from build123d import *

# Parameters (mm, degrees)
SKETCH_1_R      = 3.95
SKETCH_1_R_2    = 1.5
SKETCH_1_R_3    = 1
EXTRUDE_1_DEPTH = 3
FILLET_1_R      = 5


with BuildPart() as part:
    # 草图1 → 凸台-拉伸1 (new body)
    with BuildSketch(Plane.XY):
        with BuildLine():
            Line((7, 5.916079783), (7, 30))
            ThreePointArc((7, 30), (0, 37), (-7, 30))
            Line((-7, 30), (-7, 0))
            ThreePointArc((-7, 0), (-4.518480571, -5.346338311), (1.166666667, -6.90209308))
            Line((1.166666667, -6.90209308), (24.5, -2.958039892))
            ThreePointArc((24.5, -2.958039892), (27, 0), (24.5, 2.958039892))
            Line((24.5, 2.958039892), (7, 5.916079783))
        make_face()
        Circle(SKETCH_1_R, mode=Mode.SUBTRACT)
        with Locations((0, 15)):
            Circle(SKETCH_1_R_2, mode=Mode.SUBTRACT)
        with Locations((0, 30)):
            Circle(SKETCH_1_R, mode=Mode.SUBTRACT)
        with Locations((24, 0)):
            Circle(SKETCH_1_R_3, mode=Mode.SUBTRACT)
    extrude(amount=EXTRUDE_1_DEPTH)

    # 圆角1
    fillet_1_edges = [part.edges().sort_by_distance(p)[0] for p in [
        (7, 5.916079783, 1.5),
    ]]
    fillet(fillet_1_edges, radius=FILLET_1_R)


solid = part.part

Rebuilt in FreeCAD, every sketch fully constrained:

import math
import FreeCAD as App
import Part
import Sketcher

V = App.Vector
Q = App.Units.Quantity


def edges_at(feature, points):
    """Names of the edges that pass closest to the given points."""
    edges = feature.Shape.Edges
    near = lambda p: min(range(len(edges)), key=lambda i: edges[i].distToShape(Part.Vertex(*p))[0])
    return sorted({f"Edge{near(p) + 1}" for p in points})

doc = App.newDocument("Part")
params = doc.addObject("Spreadsheet::Sheet", "Params")
for row, (alias, value) in enumerate([
    ("sketch1_diameter", "2 mm"),
    ("sketch1_diameter2", "3 mm"),
    ("sketch1_radius", "7 mm"),
    ("sketch1_radius2", "3 mm"),
    ("sketch1_diameter3", "7.9 mm"),
    ("pad1_length", "3 mm"),
    ("fillet_radius", "5 mm"),
], start=1):
    params.set(f"A{row}", alias)
    params.set(f"B{row}", "=" + value)
    params.setAlias(f"B{row}", alias)

body = doc.addObject("PartDesign::Body", "Body")

# Sketch on XY plane
sketch1 = body.newObject("Sketcher::SketchObject", "Sketch")
sketch1.AttachmentSupport = (doc.getObject("XY_Plane"), [""])
sketch1.MapMode = "FlatFace"
sketch1.addGeometry(Part.LineSegment(V(7, 5.9, 0), V(7, 30, 0)), False)
sketch1.addGeometry(Part.ArcOfCircle(Part.Circle(V(0, 30, 0), V(0, 0, 1), 7), math.radians(0), math.radians(180)), False)
sketch1.addGeometry(Part.LineSegment(V(-7, 30, 0), V(-7, 0, 0)), False)
sketch1.addGeometry(Part.ArcOfCircle(Part.Circle(V(0, 0, 0), V(0, 0, 1), 7), math.radians(180), math.radians(280)), False)
sketch1.addGeometry(Part.LineSegment(V(1.2, -6.9, 0), V(24.5, -3, 0)), False)
sketch1.addGeometry(Part.ArcOfCircle(Part.Circle(V(24, 0, 0), V(0, 0, 1), 3), math.radians(-80), math.radians(80)), False)
sketch1.addGeometry(Part.LineSegment(V(24.5, 3, 0), V(7, 5.9, 0)), False)
sketch1.addGeometry(Part.Circle(V(0, 0, 0), V(0, 0, 1), 4), False)
sketch1.addGeometry(Part.Circle(V(24, 0, 0), V(0, 0, 1), 1), False)
sketch1.addGeometry(Part.Circle(V(0, 15, 0), V(0, 0, 1), 1.5), False)
sketch1.addGeometry(Part.Circle(V(0, 30, 0), V(0, 0, 1), 4), False)
sketch1.addConstraint(Sketcher.Constraint("Tangent", 0, 2, 1, 1))
sketch1.addConstraint(Sketcher.Constraint("Tangent", 1, 2, 2, 1))
sketch1.addConstraint(Sketcher.Constraint("Tangent", 2, 2, 3, 1))
sketch1.addConstraint(Sketcher.Constraint("Tangent", 3, 2, 4, 1))
sketch1.addConstraint(Sketcher.Constraint("Tangent", 4, 2, 5, 1))
sketch1.addConstraint(Sketcher.Constraint("Tangent", 5, 2, 6, 1))
sketch1.addConstraint(Sketcher.Constraint("Coincident", 6, 2, 0, 1))
sketch1.addConstraint(Sketcher.Constraint("Vertical", 0))
sketch1.addConstraint(Sketcher.Constraint("Vertical", 2))
sketch1.addConstraint(Sketcher.Constraint("Coincident", 3, 3, -1, 1))
sketch1.addConstraint(Sketcher.Constraint("Coincident", 7, 3, -1, 1))
sketch1.addConstraint(Sketcher.Constraint("Coincident", 8, 3, 5, 3))
sketch1.addConstraint(Sketcher.Constraint("Coincident", 10, 3, 1, 3))
sketch1.addConstraint(Sketcher.Constraint("Equal", 1, 3))
sketch1.addConstraint(Sketcher.Constraint("Equal", 7, 10))
sketch1.addConstraint(Sketcher.Constraint("Symmetric", 4, 2, 5, 2, -1))
sketch1.addConstraint(Sketcher.Constraint("PointOnObject", 9, 3, -2))
sketch1.addConstraint(Sketcher.Constraint("Diameter", 8, Q("2 mm")))
sketch1.addConstraint(Sketcher.Constraint("Diameter", 9, Q("3 mm")))
sketch1.addConstraint(Sketcher.Constraint("Radius", 1, Q("7 mm")))
sketch1.addConstraint(Sketcher.Constraint("Radius", 5, Q("3 mm")))
sketch1.addConstraint(Sketcher.Constraint("Diameter", 7, Q("7.9 mm")))
sketch1.addConstraint(Sketcher.Constraint("DistanceY", 2, 2, 2, 1, Q("30 mm")))
sketch1.addConstraint(Sketcher.Constraint("DistanceX", -1, 1, 5, 3, Q("24 mm")))
sketch1.addConstraint(Sketcher.Constraint("DistanceY", -1, 1, 9, 3, Q("15 mm")))
sketch1.setExpression("Constraints[17]", "Params.sketch1_diameter")
sketch1.setExpression("Constraints[18]", "Params.sketch1_diameter2")
sketch1.setExpression("Constraints[19]", "Params.sketch1_radius")
sketch1.setExpression("Constraints[20]", "Params.sketch1_radius2")
sketch1.setExpression("Constraints[21]", "Params.sketch1_diameter3")
pad1 = body.newObject("PartDesign::Pad", "Pad")
pad1.Profile = sketch1
pad1.setExpression("Length", "Params.pad1_length")
doc.recompute()

fillet = body.newObject("PartDesign::Fillet", "Fillet")
fillet.Base = (pad1, edges_at(pad1, [(7, 5.916, 1.5)]))
fillet.setExpression("Radius", "Params.fillet_radius")

doc.recompute()
